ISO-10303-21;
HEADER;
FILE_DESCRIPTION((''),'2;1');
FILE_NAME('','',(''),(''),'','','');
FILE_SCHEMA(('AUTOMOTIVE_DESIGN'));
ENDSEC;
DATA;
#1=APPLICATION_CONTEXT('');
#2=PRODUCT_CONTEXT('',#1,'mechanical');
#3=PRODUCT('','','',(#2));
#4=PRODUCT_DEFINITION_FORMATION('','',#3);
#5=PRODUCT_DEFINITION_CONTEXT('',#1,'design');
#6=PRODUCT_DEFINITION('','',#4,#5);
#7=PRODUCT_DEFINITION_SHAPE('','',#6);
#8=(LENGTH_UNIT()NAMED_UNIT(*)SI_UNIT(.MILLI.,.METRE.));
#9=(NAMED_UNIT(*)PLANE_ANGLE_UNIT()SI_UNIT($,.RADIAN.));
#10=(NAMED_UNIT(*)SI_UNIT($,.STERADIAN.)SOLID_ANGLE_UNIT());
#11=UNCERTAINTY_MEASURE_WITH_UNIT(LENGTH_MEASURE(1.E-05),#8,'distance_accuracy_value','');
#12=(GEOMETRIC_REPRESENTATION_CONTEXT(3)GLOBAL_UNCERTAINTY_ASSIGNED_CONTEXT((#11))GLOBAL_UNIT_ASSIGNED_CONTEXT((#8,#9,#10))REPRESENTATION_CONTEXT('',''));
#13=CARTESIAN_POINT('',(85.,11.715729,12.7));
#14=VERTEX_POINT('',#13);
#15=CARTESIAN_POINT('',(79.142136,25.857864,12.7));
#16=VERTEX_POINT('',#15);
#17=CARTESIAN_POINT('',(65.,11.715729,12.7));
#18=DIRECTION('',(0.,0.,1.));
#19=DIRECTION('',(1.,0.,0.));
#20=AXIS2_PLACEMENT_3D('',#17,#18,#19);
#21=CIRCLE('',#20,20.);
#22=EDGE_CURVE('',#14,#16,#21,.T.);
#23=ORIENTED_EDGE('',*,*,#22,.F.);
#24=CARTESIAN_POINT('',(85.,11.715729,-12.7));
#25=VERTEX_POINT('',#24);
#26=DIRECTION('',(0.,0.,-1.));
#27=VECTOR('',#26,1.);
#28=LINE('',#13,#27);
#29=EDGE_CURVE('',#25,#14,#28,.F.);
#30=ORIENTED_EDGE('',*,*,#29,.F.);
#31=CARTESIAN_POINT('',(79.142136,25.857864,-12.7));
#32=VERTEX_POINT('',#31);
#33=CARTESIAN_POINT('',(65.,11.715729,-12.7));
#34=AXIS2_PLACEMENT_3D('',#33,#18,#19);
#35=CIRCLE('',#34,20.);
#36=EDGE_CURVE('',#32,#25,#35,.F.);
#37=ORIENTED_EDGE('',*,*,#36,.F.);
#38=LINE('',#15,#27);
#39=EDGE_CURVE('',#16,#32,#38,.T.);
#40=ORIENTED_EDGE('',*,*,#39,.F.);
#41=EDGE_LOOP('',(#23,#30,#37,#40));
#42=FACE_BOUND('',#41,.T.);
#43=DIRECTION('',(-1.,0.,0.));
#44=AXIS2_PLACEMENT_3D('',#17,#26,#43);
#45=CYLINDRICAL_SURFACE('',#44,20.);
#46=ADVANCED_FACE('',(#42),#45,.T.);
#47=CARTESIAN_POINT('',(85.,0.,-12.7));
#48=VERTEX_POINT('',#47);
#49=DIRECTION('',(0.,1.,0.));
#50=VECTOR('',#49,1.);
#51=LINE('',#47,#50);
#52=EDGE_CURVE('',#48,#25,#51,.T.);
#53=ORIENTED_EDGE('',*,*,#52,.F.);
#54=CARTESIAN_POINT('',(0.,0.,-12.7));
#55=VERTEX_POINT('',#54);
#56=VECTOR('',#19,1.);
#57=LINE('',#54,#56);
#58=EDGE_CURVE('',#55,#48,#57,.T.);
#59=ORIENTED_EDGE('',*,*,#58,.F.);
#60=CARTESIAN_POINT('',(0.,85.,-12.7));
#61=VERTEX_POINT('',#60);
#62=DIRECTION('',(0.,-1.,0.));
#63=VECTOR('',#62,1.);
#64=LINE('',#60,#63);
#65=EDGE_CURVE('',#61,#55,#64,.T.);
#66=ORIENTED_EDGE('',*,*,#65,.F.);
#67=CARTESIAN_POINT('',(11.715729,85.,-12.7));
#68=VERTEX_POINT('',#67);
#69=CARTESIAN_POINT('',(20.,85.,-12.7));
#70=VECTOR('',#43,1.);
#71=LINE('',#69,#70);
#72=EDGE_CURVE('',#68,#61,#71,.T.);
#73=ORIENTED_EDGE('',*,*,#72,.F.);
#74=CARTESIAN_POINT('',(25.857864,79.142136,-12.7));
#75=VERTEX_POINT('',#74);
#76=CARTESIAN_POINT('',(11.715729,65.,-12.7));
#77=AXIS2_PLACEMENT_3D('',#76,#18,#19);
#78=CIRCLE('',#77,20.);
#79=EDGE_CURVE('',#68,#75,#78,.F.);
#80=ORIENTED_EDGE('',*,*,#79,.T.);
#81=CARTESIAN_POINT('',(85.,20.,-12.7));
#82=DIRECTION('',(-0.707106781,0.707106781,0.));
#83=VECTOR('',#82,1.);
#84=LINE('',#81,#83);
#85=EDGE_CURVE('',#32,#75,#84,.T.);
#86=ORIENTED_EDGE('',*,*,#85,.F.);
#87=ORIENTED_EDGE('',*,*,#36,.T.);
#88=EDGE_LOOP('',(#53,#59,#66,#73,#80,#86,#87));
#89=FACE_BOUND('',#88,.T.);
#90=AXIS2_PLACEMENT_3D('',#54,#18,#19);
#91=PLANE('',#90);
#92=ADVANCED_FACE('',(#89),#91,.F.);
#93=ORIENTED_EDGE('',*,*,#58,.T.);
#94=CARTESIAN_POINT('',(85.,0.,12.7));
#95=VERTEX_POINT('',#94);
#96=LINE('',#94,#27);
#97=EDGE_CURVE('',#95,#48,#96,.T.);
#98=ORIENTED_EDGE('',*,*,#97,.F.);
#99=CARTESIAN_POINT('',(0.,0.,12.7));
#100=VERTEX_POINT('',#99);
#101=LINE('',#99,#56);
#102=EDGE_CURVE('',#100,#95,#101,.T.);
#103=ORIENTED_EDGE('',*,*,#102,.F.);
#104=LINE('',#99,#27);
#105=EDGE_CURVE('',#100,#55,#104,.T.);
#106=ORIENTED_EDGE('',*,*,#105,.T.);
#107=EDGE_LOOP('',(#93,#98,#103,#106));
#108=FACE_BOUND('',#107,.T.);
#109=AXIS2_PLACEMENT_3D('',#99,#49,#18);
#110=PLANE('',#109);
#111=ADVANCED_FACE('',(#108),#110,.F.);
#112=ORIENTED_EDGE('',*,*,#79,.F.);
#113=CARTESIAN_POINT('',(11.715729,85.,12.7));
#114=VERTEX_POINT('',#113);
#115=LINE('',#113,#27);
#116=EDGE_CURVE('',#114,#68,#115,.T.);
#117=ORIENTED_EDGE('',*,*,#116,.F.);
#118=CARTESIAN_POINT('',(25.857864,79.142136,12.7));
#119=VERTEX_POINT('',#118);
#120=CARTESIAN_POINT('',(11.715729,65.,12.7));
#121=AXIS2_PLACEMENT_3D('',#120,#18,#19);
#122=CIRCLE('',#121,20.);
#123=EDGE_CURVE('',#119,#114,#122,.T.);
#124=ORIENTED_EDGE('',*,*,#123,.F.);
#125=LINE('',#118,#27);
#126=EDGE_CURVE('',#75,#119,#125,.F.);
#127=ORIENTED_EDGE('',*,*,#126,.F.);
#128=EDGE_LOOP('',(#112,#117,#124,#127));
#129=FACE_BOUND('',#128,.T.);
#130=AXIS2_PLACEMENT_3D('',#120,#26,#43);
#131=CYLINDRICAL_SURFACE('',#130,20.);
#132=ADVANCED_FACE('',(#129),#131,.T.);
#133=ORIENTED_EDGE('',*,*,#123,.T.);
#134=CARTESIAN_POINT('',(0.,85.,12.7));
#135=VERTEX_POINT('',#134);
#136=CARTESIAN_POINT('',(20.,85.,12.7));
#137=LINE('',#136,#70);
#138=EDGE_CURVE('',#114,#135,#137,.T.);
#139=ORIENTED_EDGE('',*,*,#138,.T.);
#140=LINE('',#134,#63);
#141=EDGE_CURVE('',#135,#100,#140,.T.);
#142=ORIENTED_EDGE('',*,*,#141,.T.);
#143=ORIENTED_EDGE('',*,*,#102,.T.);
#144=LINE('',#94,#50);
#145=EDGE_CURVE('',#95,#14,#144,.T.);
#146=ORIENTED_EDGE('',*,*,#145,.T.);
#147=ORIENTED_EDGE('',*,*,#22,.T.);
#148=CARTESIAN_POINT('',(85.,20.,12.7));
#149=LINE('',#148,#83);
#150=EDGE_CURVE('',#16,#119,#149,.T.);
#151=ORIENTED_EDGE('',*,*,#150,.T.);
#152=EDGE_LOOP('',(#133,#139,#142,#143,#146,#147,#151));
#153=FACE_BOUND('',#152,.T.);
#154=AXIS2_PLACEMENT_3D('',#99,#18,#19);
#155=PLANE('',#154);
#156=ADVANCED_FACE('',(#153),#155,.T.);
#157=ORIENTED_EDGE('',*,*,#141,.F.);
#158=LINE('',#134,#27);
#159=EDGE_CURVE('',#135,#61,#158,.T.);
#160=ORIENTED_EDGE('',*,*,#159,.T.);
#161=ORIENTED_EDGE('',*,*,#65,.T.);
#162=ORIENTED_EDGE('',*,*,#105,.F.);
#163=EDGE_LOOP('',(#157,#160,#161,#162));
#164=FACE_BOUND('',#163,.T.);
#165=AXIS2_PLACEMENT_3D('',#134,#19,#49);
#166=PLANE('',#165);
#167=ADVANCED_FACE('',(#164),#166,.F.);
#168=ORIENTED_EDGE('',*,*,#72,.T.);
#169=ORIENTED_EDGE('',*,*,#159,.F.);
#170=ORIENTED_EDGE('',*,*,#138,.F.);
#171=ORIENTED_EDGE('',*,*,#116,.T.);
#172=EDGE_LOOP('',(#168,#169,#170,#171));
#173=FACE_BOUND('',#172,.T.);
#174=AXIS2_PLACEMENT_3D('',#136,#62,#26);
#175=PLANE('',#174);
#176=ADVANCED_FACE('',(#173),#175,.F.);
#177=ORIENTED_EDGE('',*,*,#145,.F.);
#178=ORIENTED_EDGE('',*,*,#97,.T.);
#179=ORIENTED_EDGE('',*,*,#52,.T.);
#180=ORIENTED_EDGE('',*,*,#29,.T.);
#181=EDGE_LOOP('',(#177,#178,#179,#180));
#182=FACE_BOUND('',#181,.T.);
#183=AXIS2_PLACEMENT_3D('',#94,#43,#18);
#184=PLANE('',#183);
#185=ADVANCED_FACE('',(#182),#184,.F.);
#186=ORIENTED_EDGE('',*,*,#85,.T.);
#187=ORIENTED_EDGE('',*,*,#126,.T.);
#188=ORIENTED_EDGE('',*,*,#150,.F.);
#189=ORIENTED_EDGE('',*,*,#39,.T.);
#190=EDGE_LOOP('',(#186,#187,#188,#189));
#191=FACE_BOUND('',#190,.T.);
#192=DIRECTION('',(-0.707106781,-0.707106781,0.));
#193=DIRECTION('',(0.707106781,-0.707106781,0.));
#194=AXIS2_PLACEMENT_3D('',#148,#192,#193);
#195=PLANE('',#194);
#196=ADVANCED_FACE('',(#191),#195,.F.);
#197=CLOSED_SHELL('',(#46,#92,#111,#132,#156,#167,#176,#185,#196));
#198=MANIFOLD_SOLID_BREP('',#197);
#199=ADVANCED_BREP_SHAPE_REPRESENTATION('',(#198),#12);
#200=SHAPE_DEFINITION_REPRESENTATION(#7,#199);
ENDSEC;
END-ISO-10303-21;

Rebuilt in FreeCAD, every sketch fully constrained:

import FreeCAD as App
import Part
import Sketcher
from FreeCAD import Vector


def edges_at(feature, points):
    """Names of the edges that pass closest to the given points."""
    edges = feature.Shape.Edges
    near = lambda p: min(range(len(edges)), key=lambda i: edges[i].distToShape(Part.Vertex(*p))[0])
    return sorted({f"Edge{near(p) + 1}" for p in points})


def add_polygon(sketch, points):
    """Adds a closed chain of lines whose ends are joined by coincident constraints."""
    first, n = sketch.GeometryCount, len(points)
    for a, b in zip(points, points[1:] + points[:1]):
        sketch.addGeometry(Part.LineSegment(App.Vector(*a, 0), App.Vector(*b, 0)), False)
    for i in range(n):
        sketch.addConstraint(Sketcher.Constraint("Coincident", first + i, 2, first + (i + 1) % n, 1))

doc = App.newDocument("Part")
body = doc.addObject("PartDesign::Body", "Body")

sketch1 = body.newObject("Sketcher::SketchObject", "Sketch")
sketch1.AttachmentSupport = (doc.getObject("XY_Plane"), [""])
sketch1.MapMode = "FlatFace"
add_polygon(sketch1, [(0, 0), (85, 0), (85, 20), (20, 85), (0, 85)])
sketch1.addConstraint(Sketcher.Constraint("Horizontal", 0))
sketch1.addConstraint(Sketcher.Constraint("Vertical", 1))
sketch1.addConstraint(Sketcher.Constraint("Horizontal", 3))
sketch1.addConstraint(Sketcher.Constraint("Vertical", 4))
sketch1.addConstraint(Sketcher.Constraint("Coincident", 4, 2, -1, 1))
sketch1.addConstraint(Sketcher.Constraint("Equal", 3, 1))
sketch1.addConstraint(Sketcher.Constraint("Equal", 0, 4))
sketch1.addConstraint(Sketcher.Constraint("DistanceX", 0, 1, 0, 2, 85.0))
sketch1.addConstraint(Sketcher.Constraint("DistanceX", 3, 2, 3, 1, 20.0))
pad1 = body.newObject("PartDesign::Pad", "Pad")
pad1.Profile = sketch1
pad1.Length = 25.4
pad1.Midplane = True
doc.recompute()

fillet = body.newObject("PartDesign::Fillet", "Fillet")
fillet.Base = (pad1, edges_at(pad1, [(20, 85, 0), (85, 20, 0)]))
fillet.Radius = 20

doc.recompute()
